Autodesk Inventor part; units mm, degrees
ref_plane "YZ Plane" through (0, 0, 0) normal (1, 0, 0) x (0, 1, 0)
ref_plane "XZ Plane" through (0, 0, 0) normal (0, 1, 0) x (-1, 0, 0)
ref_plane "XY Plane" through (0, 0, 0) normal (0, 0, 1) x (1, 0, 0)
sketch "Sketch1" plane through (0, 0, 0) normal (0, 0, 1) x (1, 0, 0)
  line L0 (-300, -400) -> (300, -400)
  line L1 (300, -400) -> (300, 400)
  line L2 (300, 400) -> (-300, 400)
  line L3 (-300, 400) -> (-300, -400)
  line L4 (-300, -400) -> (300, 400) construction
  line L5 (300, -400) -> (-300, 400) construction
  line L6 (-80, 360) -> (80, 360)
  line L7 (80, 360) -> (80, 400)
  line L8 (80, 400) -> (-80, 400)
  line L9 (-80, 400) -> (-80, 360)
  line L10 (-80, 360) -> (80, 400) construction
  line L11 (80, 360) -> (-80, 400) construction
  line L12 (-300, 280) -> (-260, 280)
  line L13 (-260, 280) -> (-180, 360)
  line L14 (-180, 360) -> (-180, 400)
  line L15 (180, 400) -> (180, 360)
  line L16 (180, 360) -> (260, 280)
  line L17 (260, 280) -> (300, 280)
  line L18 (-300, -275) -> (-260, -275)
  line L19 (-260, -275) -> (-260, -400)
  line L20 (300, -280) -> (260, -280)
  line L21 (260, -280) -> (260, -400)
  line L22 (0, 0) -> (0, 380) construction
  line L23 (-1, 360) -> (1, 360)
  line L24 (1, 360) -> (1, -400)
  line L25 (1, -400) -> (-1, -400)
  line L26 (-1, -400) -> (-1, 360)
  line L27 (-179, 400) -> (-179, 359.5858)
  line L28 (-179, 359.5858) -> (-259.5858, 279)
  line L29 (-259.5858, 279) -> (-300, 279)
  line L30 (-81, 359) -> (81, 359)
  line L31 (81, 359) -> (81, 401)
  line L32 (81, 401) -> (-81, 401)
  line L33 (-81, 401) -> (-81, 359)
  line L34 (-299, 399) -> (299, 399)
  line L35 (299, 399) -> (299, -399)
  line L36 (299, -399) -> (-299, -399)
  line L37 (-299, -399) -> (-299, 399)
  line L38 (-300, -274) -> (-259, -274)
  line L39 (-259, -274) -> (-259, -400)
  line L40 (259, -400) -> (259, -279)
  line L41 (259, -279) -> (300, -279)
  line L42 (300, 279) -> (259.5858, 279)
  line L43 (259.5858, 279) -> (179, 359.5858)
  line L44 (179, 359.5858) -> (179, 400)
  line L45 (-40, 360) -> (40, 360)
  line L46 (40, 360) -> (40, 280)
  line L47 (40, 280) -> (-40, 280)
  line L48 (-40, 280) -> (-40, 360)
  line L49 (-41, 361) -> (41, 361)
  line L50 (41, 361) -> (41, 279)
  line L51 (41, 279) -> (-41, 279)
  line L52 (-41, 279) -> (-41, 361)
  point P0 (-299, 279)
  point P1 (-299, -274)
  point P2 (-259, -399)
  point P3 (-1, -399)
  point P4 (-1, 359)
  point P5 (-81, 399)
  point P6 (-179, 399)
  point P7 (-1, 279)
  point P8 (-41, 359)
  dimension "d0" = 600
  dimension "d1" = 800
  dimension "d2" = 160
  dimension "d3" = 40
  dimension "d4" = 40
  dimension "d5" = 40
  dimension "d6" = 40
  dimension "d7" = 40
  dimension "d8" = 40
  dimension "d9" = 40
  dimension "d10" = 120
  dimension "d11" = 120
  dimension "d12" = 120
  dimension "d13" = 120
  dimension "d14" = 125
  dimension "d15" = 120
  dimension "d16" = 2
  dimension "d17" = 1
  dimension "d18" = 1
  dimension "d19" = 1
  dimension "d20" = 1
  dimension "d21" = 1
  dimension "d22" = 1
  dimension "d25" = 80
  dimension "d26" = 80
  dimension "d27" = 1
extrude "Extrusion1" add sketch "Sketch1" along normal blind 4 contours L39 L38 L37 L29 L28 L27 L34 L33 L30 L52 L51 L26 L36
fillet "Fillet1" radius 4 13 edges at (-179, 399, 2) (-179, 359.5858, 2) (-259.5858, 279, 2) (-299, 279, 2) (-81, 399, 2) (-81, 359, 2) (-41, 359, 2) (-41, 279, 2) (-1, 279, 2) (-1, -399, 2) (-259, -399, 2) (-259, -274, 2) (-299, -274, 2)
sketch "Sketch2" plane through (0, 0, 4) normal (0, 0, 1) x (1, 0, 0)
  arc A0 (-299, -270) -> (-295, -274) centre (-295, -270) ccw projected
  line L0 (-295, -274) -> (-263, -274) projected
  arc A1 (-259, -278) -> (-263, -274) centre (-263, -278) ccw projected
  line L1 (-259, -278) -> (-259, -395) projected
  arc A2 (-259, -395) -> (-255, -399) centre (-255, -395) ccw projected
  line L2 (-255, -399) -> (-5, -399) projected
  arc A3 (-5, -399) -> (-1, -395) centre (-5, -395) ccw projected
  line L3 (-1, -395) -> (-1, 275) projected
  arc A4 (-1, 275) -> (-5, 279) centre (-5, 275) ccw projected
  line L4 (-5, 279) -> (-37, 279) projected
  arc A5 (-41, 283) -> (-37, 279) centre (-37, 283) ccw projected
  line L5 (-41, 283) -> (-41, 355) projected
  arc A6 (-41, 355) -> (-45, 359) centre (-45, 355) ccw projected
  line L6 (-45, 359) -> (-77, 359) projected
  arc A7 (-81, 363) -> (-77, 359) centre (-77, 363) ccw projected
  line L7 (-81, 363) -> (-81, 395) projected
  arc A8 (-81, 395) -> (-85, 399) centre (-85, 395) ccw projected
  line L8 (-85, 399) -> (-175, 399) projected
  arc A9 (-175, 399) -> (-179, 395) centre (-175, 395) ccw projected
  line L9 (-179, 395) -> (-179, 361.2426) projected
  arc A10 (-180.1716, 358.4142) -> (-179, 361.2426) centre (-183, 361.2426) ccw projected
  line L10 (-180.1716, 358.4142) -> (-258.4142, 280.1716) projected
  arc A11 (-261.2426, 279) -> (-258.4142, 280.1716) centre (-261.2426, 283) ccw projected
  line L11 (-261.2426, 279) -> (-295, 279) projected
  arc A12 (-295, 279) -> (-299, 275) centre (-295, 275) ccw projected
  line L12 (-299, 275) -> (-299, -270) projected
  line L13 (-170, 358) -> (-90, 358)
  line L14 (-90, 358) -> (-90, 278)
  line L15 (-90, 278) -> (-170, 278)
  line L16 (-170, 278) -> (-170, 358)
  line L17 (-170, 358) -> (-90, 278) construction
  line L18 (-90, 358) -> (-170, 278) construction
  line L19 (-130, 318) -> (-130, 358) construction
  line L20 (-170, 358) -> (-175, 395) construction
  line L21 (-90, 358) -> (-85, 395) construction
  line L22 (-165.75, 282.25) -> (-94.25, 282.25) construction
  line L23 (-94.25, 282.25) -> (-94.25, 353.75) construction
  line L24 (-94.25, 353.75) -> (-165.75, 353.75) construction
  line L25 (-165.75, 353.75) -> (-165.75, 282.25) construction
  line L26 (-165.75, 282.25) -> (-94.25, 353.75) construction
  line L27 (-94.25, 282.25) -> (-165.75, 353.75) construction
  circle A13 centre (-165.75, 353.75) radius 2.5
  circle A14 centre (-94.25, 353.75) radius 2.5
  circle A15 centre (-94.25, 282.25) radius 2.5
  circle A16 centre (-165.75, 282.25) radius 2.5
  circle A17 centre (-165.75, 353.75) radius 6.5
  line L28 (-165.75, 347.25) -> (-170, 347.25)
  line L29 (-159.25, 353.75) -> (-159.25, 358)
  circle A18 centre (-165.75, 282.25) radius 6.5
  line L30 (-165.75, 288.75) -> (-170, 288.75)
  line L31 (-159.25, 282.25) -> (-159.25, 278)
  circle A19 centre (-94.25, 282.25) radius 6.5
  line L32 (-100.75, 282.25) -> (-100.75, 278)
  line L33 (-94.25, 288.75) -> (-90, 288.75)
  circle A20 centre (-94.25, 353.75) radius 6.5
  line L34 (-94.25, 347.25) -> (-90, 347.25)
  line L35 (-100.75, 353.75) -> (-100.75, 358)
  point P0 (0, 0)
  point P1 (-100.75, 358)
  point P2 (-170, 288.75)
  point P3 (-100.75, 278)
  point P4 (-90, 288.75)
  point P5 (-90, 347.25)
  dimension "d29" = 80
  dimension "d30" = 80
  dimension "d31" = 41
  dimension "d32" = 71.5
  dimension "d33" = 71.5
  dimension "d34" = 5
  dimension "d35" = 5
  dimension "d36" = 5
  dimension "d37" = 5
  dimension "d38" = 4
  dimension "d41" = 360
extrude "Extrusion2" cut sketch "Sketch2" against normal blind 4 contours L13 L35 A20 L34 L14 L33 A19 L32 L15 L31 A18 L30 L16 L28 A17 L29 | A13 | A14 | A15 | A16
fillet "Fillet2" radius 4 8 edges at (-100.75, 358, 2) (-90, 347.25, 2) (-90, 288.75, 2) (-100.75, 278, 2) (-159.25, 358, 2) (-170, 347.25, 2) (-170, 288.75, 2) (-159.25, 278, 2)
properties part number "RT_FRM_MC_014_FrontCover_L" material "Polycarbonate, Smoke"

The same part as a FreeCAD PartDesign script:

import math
import FreeCAD as App
import Part
import Sketcher
from FreeCAD import Vector
Q = App.Units.Quantity


def edges_at(feature, points):
    """Names of the edges that pass closest to the given points."""
    edges = feature.Shape.Edges
    near = lambda p: min(range(len(edges)), key=lambda i: edges[i].distToShape(Part.Vertex(*p))[0])
    return sorted({f"Edge{near(p) + 1}" for p in points})


def add_polygon(sketch, points):
    """Adds a closed chain of lines whose ends are joined by coincident constraints."""
    first, n = sketch.GeometryCount, len(points)
    for a, b in zip(points, points[1:] + points[:1]):
        sketch.addGeometry(Part.LineSegment(App.Vector(*a, 0), App.Vector(*b, 0)), False)
    for i in range(n):
        sketch.addConstraint(Sketcher.Constraint("Coincident", first + i, 2, first + (i + 1) % n, 1))

doc = App.newDocument("Part")
body = doc.addObject("PartDesign::Body", "Body")

# Sketch on XY plane
sketch1 = body.newObject("Sketcher::SketchObject", "Sketch")
sketch1.AttachmentSupport = (doc.getObject("XY_Plane"), [""])
sketch1.MapMode = "FlatFace"
add_polygon(sketch1, [(-259, -274), (-259, -399), (-1, -399), (-1, 279), (-41, 279), (-41, 359), (-81, 359), (-81, 399), (-179, 399), (-179, 360), (-260, 279), (-299, 279), (-299, -274)])  # lines 0-12
sketch1.addConstraint([
    Sketcher.Constraint("Vertical", 0),
    Sketcher.Constraint("Horizontal", 1),
    Sketcher.Constraint("Vertical", 2),
    Sketcher.Constraint("Horizontal", 3),
    Sketcher.Constraint("Vertical", 4),
    Sketcher.Constraint("Horizontal", 5),
    Sketcher.Constraint("Vertical", 6),
    Sketcher.Constraint("Horizontal", 7),
    Sketcher.Constraint("Vertical", 8),
    Sketcher.Constraint("Horizontal", 10),
    Sketcher.Constraint("Vertical", 11),
    Sketcher.Constraint("Horizontal", 12),
    Sketcher.Constraint("Horizontal", 3, 2, 9, 2),
    Sketcher.Constraint("Equal", 3, 5),
    Sketcher.Constraint("Equal", 5, 12),
    Sketcher.Constraint("Equal", 12, 6),
    Sketcher.Constraint("Equal", 10, 8),
    Sketcher.Constraint("DistanceX", 3, 2, 3, 1, Q("40 mm")),
    Sketcher.Constraint("DistanceY", 0, 2, 0, 1, Q("125 mm")),
    Sketcher.Constraint("DistanceY", 4, 1, 4, 2, Q("80 mm")),
    Sketcher.Constraint("DistanceX", 1, 2, -1, 1, Q("1 mm")),
    Sketcher.Constraint("DistanceX", 10, 2, 8, 2, Q("120 mm")),
    Sketcher.Constraint("DistanceX", 1, 1, 1, 2, Q("258 mm")),
    Sketcher.Constraint("DistanceY", 2, 1, 2, 2, Q("678 mm")),
    Sketcher.Constraint("DistanceY", 0, 2, -1, 1, Q("399 mm")),
    Sketcher.Constraint("DistanceX", 10, 2, 10, 1, Q("39.4142 mm")),
])
pad1 = body.newObject("PartDesign::Pad", "Pad")
pad1.Profile = sketch1
pad1.Length = 4
doc.recompute()

fillet = body.newObject("PartDesign::Fillet", "Fillet")
fillet.Base = (pad1, edges_at(pad1, [
    (-179, 399, 2),
    (-179, 359.586, 2),
    (-259.586, 279, 2),
    (-299, 279, 2),
    (-81, 399, 2),
    (-81, 359, 2),
    (-41, 359, 2),
    (-41, 279, 2),
    (-1, 279, 2),
    (-1, -399, 2),
    (-259, -399, 2),
    (-259, -274, 2),
    (-299, -274, 2),
]))
fillet.Radius = 4

# Sketch on XY plane
sketch2 = body.newObject("Sketcher::SketchObject", "Sketch001")
sketch2.AttachmentSupport = (doc.getObject("XY_Plane"), [""])
sketch2.MapMode = "FlatFace"
sketch2.AttachmentOffset = App.Placement(Vector(0, 0, 4), App.Rotation())
sketch2.addGeometry([
    Part.LineSegment(Vector(-100.8, 358, 0), Vector(-159.2, 358, 0)),  # 0
    Part.LineSegment(Vector(-159.2, 358, 0), Vector(-159.2, 353.8, 0)),  # 1
    Part.ArcOfCircle(Part.Circle(Vector(-165.8, 353.8, 0), Vector(0, 0, 1), 6.5), math.radians(-90), math.radians(0)),  # 2
    Part.LineSegment(Vector(-165.8, 347.2, 0), Vector(-170, 347.2, 0)),  # 3
    Part.LineSegment(Vector(-170, 347.2, 0), Vector(-170, 288.8, 0)),  # 4
    Part.LineSegment(Vector(-170, 288.8, 0), Vector(-165.8, 288.8, 0)),  # 5
    Part.ArcOfCircle(Part.Circle(Vector(-165.8, 282.2, 0), Vector(0, 0, 1), 6.5), math.radians(0), math.radians(90)),  # 6
    Part.LineSegment(Vector(-159.2, 282.2, 0), Vector(-159.2, 278, 0)),  # 7
    Part.LineSegment(Vector(-159.2, 278, 0), Vector(-100.8, 278, 0)),  # 8
    Part.LineSegment(Vector(-100.8, 278, 0), Vector(-100.8, 282.2, 0)),  # 9
    Part.ArcOfCircle(Part.Circle(Vector(-94.2, 282.2, 0), Vector(0, 0, 1), 6.5), math.radians(90), math.radians(180)),  # 10
    Part.LineSegment(Vector(-94.2, 288.8, 0), Vector(-90, 288.8, 0)),  # 11
    Part.LineSegment(Vector(-90, 288.8, 0), Vector(-90, 347.2, 0)),  # 12
    Part.LineSegment(Vector(-90, 347.2, 0), Vector(-94.2, 347.2, 0)),  # 13
    Part.ArcOfCircle(Part.Circle(Vector(-94.2, 353.8, 0), Vector(0, 0, 1), 6.5), math.radians(180), math.radians(270)),  # 14
    Part.LineSegment(Vector(-100.8, 353.8, 0), Vector(-100.8, 358, 0)),  # 15
    Part.Circle(Vector(-165.8, 353.8, 0), Vector(0, 0, 1), 2.5),  # 16
    Part.Circle(Vector(-94.2, 353.8, 0), Vector(0, 0, 1), 2.5),  # 17
    Part.Circle(Vector(-94.2, 282.2, 0), Vector(0, 0, 1), 2.5),  # 18
    Part.Circle(Vector(-165.8, 282.2, 0), Vector(0, 0, 1), 2.5),  # 19
], False)
sketch2.addConstraint([
    Sketcher.Constraint("Coincident", 0, 2, 1, 1),
    Sketcher.Constraint("Tangent", 1, 2, 2, 2),
    Sketcher.Constraint("Tangent", 2, 1, 3, 1),
    Sketcher.Constraint("Coincident", 3, 2, 4, 1),
    Sketcher.Constraint("Coincident", 4, 2, 5, 1),
    Sketcher.Constraint("Tangent", 5, 2, 6, 2),
    Sketcher.Constraint("Tangent", 6, 1, 7, 1),
    Sketcher.Constraint("Coincident", 7, 2, 8, 1),
    Sketcher.Constraint("Coincident", 8, 2, 9, 1),
    Sketcher.Constraint("Tangent", 9, 2, 10, 2),
    Sketcher.Constraint("Tangent", 10, 1, 11, 1),
    Sketcher.Constraint("Coincident", 11, 2, 12, 1),
    Sketcher.Constraint("Coincident", 12, 2, 13, 1),
    Sketcher.Constraint("Tangent", 13, 2, 14, 2),
    Sketcher.Constraint("Tangent", 14, 1, 15, 1),
    Sketcher.Constraint("Coincident", 15, 2, 0, 1),
    Sketcher.Constraint("Horizontal", 0),
    Sketcher.Constraint("Vertical", 1),
    Sketcher.Constraint("Horizontal", 3),
    Sketcher.Constraint("Vertical", 4),
    Sketcher.Constraint("Horizontal", 5),
    Sketcher.Constraint("Vertical", 7),
    Sketcher.Constraint("Horizontal", 8),
    Sketcher.Constraint("Vertical", 9),
    Sketcher.Constraint("Horizontal", 11),
    Sketcher.Constraint("Vertical", 12),
    Sketcher.Constraint("Horizontal", 13),
    Sketcher.Constraint("Vertical", 15),
    Sketcher.Constraint("Coincident", 16, 3, 2, 3),
    Sketcher.Constraint("Coincident", 17, 3, 14, 3),
    Sketcher.Constraint("Coincident", 18, 3, 10, 3),
    Sketcher.Constraint("Coincident", 19, 3, 6, 3),
    Sketcher.Constraint("Equal", 2, 6),
    Sketcher.Constraint("Equal", 6, 10),
    Sketcher.Constraint("Equal", 10, 14),
    Sketcher.Constraint("Equal", 16, 17),
    Sketcher.Constraint("Equal", 17, 18),
    Sketcher.Constraint("Equal", 18, 19),
    Sketcher.Constraint("Horizontal", 6, 3, 10, 3),
    Sketcher.Constraint("Horizontal", 2, 3, 14, 3),
    Sketcher.Constraint("Vertical", 2, 3, 6, 3),
    Sketcher.Constraint("Vertical", 10, 3, 14, 3),
    Sketcher.Constraint("Equal", 5, 11),
    Sketcher.Constraint("Equal", 13, 1),
    Sketcher.Constraint("Equal", 8, 4),
    Sketcher.Constraint("Equal", 1, 7),
    Sketcher.Constraint("Diameter", 16, Q("5 mm")),
    Sketcher.Constraint("Radius", 2, Q("6.5 mm")),
    Sketcher.Constraint("DistanceY", 6, 3, 2, 3, Q("71.5 mm")),
    Sketcher.Constraint("DistanceY", -1, 1, 0, 2, Q("358 mm")),
    Sketcher.Constraint("DistanceX", 3, 2, -1, 1, Q("170 mm")),
    Sketcher.Constraint("DistanceY", -1, 1, 7, 2, Q("278 mm")),
])
pocket1 = body.newObject("PartDesign::Pocket", "Pocket")
pocket1.Profile = sketch2
pocket1.Length = 4
doc.recompute()

fillet2 = body.newObject("PartDesign::Fillet", "Fillet001")
fillet2.Base = (pocket1, edges_at(pocket1, [
    (-100.75, 358, 2),
    (-90, 347.25, 2),
    (-90, 288.75, 2),
    (-100.75, 278, 2),
    (-159.25, 358, 2),
    (-170, 347.25, 2),
    (-170, 288.75, 2),
    (-159.25, 278, 2),
]))
fillet2.Radius = 4

doc.recompute()
